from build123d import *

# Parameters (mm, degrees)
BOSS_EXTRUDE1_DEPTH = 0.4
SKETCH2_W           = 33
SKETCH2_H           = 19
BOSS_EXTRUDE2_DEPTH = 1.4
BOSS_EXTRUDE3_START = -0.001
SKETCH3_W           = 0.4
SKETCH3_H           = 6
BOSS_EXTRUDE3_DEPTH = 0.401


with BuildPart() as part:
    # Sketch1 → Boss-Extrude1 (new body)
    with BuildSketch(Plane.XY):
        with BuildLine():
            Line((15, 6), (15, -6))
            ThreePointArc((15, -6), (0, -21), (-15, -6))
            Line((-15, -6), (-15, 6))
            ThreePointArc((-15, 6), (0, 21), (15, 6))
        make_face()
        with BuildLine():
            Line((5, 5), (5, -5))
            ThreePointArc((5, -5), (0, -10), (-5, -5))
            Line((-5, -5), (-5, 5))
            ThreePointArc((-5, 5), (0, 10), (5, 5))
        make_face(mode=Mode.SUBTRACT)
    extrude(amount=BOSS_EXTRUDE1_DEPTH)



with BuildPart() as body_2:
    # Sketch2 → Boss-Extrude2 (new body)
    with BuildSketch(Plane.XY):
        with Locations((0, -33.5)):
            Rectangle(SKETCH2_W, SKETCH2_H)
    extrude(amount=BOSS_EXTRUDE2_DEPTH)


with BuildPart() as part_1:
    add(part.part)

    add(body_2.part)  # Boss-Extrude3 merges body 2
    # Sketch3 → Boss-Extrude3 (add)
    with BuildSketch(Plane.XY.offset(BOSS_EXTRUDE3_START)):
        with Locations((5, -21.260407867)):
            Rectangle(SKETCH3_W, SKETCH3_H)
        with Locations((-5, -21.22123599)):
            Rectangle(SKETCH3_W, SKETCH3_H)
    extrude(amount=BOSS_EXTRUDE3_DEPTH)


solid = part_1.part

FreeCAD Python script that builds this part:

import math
import FreeCAD as App
import Part
import Sketcher

doc = App.newDocument("Part")
body = doc.addObject("PartDesign::Body", "Body")

# Sketch on XY plane
sketch1 = doc.addObject("Sketcher::SketchObject", "Sketch")
body.addObject(sketch1)
sketch1.AttachmentSupport = (doc.XY_Plane, [""])
sketch1.MapMode = "FlatFace"
sketch1.addGeometry([
    Part.LineSegment(App.Vector(15, -6, 0), App.Vector(15, 6, 0)),  # 0
    Part.ArcOfCircle(Part.Circle(App.Vector(0, 6, 0), App.Vector(0, 0, 1), 15), math.radians(0), math.radians(180)),  # 1
    Part.LineSegment(App.Vector(-15, 6, 0), App.Vector(-15, -6, 0)),  # 2
    Part.ArcOfCircle(Part.Circle(App.Vector(0, -6, 0), App.Vector(0, 0, 1), 15), math.radians(180), math.radians(360)),  # 3
    Part.LineSegment(App.Vector(5, 5, 0), App.Vector(5, -5, 0)),  # 4
    Part.ArcOfCircle(Part.Circle(App.Vector(0, -5, 0), App.Vector(0, 0, 1), 5), math.radians(180), math.radians(360)),  # 5
    Part.LineSegment(App.Vector(-5, -5, 0), App.Vector(-5, 5, 0)),  # 6
    Part.ArcOfCircle(Part.Circle(App.Vector(0, 5, 0), App.Vector(0, 0, 1), 5), math.radians(0), math.radians(180)),  # 7
], False)
sketch1.addConstraint([
    Sketcher.Constraint("Tangent", 0, 2, 1, 1),
    Sketcher.Constraint("Tangent", 1, 2, 2, 1),
    Sketcher.Constraint("Tangent", 2, 2, 3, 1),
    Sketcher.Constraint("Tangent", 3, 2, 0, 1),
    Sketcher.Constraint("Tangent", 4, 2, 5, 2),
    Sketcher.Constraint("Tangent", 5, 1, 6, 1),
    Sketcher.Constraint("Tangent", 6, 2, 7, 2),
    Sketcher.Constraint("Tangent", 7, 1, 4, 1),
    Sketcher.Constraint("Vertical", 0),
    Sketcher.Constraint("Vertical", 2),
    Sketcher.Constraint("Vertical", 4),
    Sketcher.Constraint("Vertical", 6),
    Sketcher.Constraint("Symmetric", 1, 3, 3, 3, -1, 1),
    Sketcher.Constraint("Symmetric", 5, 3, 7, 3, -1, 1),
    Sketcher.Constraint("Radius", 1, 15.0),
    Sketcher.Constraint("Radius", 5, 5.0),
    Sketcher.Constraint("DistanceY", 0, 1, 0, 2, 12.0),
    Sketcher.Constraint("DistanceY", 4, 2, 4, 1, 10.0),
])
pad1 = doc.addObject("PartDesign::Pad", "Pad")
body.addObject(pad1)
pad1.Profile = sketch1
pad1.Length = 0.4
body2 = doc.addObject("PartDesign::Body", "Body001")

# Sketch on XY plane
sketch2 = doc.addObject("Sketcher::SketchObject", "Sketch001")
body2.addObject(sketch2)
sketch2.AttachmentSupport = (doc.getObject("XY_Plane001"), [""])
sketch2.MapMode = "FlatFace"
sketch2.addGeometry([
    Part.LineSegment(App.Vector(-16, -24, 0), App.Vector(-16, -43, 0)),
    Part.LineSegment(App.Vector(-16, -43, 0), App.Vector(16, -43, 0)),
    Part.LineSegment(App.Vector(16, -43, 0), App.Vector(16, -24, 0)),
    Part.LineSegment(App.Vector(16, -24, 0), App.Vector(-16, -24, 0)),
], False)
sketch2.addConstraint([
    Sketcher.Constraint("Coincident", 0, 2, 1, 1),
    Sketcher.Constraint("Coincident", 1, 2, 2, 1),
    Sketcher.Constraint("Coincident", 2, 2, 3, 1),
    Sketcher.Constraint("Coincident", 3, 2, 0, 1),
    Sketcher.Constraint("Vertical", 0),
    Sketcher.Constraint("Horizontal", 1),
    Sketcher.Constraint("Vertical", 2),
    Sketcher.Constraint("Horizontal", 3),
    Sketcher.Constraint("DistanceX", 1, 1, 1, 2, 33.0),
    Sketcher.Constraint("DistanceY", 0, 2, 0, 1, 19.0),
    Sketcher.Constraint("DistanceY", 0, 2, -1, 1, 43.0),
    Sketcher.Constraint("DistanceX", 0, 2, -1, 1, 16.5),
])
pad2 = doc.addObject("PartDesign::Pad", "Pad001")
body2.addObject(pad2)
pad2.Profile = sketch2
pad2.Length = 1.4
body.AllowCompound = True
doc.recompute()

boolean = doc.addObject("PartDesign::Boolean", "Boolean")
body.addObject(boolean)
boolean.Type = "Fuse"
boolean.addObjects([body2])

# Sketch on XY plane
sketch3 = doc.addObject("Sketcher::SketchObject", "Sketch002")
body.addObject(sketch3)
sketch3.AttachmentSupport = (doc.XY_Plane, [""])
sketch3.MapMode = "FlatFace"
sketch3.AttachmentOffset = App.Placement(App.Vector(0, 0, -0.001), App.Rotation())
sketch3.addGeometry([
    Part.LineSegment(App.Vector(4.8, -18.26, 0), App.Vector(4.8, -24.26, 0)),  # 0
    Part.LineSegment(App.Vector(4.8, -24.26, 0), App.Vector(5.2, -24.26, 0)),  # 1
    Part.LineSegment(App.Vector(5.2, -24.26, 0), App.Vector(5.2, -18.26, 0)),  # 2
    Part.LineSegment(App.Vector(5.2, -18.26, 0), App.Vector(4.8, -18.26, 0)),  # 3
    Part.LineSegment(App.Vector(-5.2, -18.22, 0), App.Vector(-5.2, -24.22, 0)),  # 4
    Part.LineSegment(App.Vector(-5.2, -24.22, 0), App.Vector(-4.8, -24.22, 0)),  # 5
    Part.LineSegment(App.Vector(-4.8, -24.22, 0), App.Vector(-4.8, -18.22, 0)),  # 6
    Part.LineSegment(App.Vector(-4.8, -18.22, 0), App.Vector(-5.2, -18.22, 0)),  # 7
], False)
sketch3.addConstraint([
    Sketcher.Constraint("Coincident", 0, 2, 1, 1),
    Sketcher.Constraint("Coincident", 1, 2, 2, 1),
    Sketcher.Constraint("Coincident", 2, 2, 3, 1),
    Sketcher.Constraint("Coincident", 3, 2, 0, 1),
    Sketcher.Constraint("Coincident", 4, 2, 5, 1),
    Sketcher.Constraint("Coincident", 5, 2, 6, 1),
    Sketcher.Constraint("Coincident", 6, 2, 7, 1),
    Sketcher.Constraint("Coincident", 7, 2, 4, 1),
    Sketcher.Constraint("Vertical", 0),
    Sketcher.Constraint("Horizontal", 1),
    Sketcher.Constraint("Vertical", 2),
    Sketcher.Constraint("Horizontal", 3),
    Sketcher.Constraint("Vertical", 4),
    Sketcher.Constraint("Horizontal", 5),
    Sketcher.Constraint("Vertical", 6),
    Sketcher.Constraint("Horizontal", 7),
    Sketcher.Constraint("Equal", 3, 5),
    Sketcher.Constraint("Equal", 2, 4),
    Sketcher.Constraint("DistanceY", 0, 2, 0, 1, 6.0),
    Sketcher.Constraint("DistanceX", 1, 1, 1, 2, 0.4),
    Sketcher.Constraint("DistanceX", 4, 2, 0, 2, 10.0),
    Sketcher.Constraint("DistanceX", -1, 1, 0, 2, 4.8),
    Sketcher.Constraint("DistanceY", 0, 2, 4, 2, 0.039172),
    Sketcher.Constraint("DistanceY", 0, 2, -1, 1, 24.260408),
])
pad3 = doc.addObject("PartDesign::Pad", "Pad002")
body.addObject(pad3)
pad3.Profile = sketch3
pad3.Length = 0.401

doc.recompute()
